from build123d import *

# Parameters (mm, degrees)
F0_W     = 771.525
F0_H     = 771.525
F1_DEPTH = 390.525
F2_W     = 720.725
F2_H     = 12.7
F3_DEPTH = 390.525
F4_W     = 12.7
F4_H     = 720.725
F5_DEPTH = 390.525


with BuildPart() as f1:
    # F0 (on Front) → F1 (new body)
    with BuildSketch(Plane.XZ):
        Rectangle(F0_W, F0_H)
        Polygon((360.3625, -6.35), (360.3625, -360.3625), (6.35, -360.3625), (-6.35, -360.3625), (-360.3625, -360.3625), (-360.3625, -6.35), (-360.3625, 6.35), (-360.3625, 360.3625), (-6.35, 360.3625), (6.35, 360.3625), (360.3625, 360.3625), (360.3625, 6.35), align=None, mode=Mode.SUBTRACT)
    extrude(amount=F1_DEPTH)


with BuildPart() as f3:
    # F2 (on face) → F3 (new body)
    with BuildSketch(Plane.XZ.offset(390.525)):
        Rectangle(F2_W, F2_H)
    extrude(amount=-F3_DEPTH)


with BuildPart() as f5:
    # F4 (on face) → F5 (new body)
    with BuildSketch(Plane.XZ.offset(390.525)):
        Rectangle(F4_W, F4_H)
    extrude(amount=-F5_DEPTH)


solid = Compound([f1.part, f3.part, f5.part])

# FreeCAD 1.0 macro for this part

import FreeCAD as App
import Part
import Sketcher
from FreeCAD import Vector
Q = App.Units.Quantity

doc = App.newDocument("Part")
body = doc.addObject("PartDesign::Body", "Body")

sketch1 = body.newObject("Sketcher::SketchObject", "Sketch")
sketch1.AttachmentSupport = (doc.getObject("XZ_Plane"), [""])
sketch1.MapMode = "FlatFace"
sketch1.addGeometry(Part.LineSegment(Vector(-386, 386, 0), Vector(-386, -386, 0)), False)
sketch1.addGeometry(Part.LineSegment(Vector(-386, -386, 0), Vector(386, -386, 0)), False)
sketch1.addGeometry(Part.LineSegment(Vector(386, -386, 0), Vector(386, 386, 0)), False)
sketch1.addGeometry(Part.LineSegment(Vector(386, 386, 0), Vector(-386, 386, 0)), False)
sketch1.addGeometry(Part.LineSegment(Vector(360, 360, 0), Vector(360, -360, 0)), False)
sketch1.addGeometry(Part.LineSegment(Vector(360, -360, 0), Vector(-360, -360, 0)), False)
sketch1.addGeometry(Part.LineSegment(Vector(-360, -360, 0), Vector(-360, 360, 0)), False)
sketch1.addGeometry(Part.LineSegment(Vector(-360, 360, 0), Vector(360, 360, 0)), False)
sketch1.addConstraint(Sketcher.Constraint("Coincident", 0, 2, 1, 1))
sketch1.addConstraint(Sketcher.Constraint("Coincident", 1, 2, 2, 1))
sketch1.addConstraint(Sketcher.Constraint("Coincident", 2, 2, 3, 1))
sketch1.addConstraint(Sketcher.Constraint("Coincident", 3, 2, 0, 1))
sketch1.addConstraint(Sketcher.Constraint("Coincident", 4, 2, 5, 1))
sketch1.addConstraint(Sketcher.Constraint("Coincident", 5, 2, 6, 1))
sketch1.addConstraint(Sketcher.Constraint("Coincident", 6, 2, 7, 1))
sketch1.addConstraint(Sketcher.Constraint("Coincident", 7, 2, 4, 1))
sketch1.addConstraint(Sketcher.Constraint("Vertical", 0))
sketch1.addConstraint(Sketcher.Constraint("Horizontal", 1))
sketch1.addConstraint(Sketcher.Constraint("Vertical", 2))
sketch1.addConstraint(Sketcher.Constraint("Horizontal", 3))
sketch1.addConstraint(Sketcher.Constraint("Vertical", 4))
sketch1.addConstraint(Sketcher.Constraint("Horizontal", 5))
sketch1.addConstraint(Sketcher.Constraint("Vertical", 6))
sketch1.addConstraint(Sketcher.Constraint("Horizontal", 7))
sketch1.addConstraint(Sketcher.Constraint("Symmetric", 0, 2, 2, 2, -1, 1))
sketch1.addConstraint(Sketcher.Constraint("Symmetric", 4, 2, 6, 2, -1, 1))
sketch1.addConstraint(Sketcher.Constraint("Equal", 3, 0))
sketch1.addConstraint(Sketcher.Constraint("Equal", 7, 4))
sketch1.addConstraint(Sketcher.Constraint("DistanceX", 4, 2, 1, 2, Q("1 in")))
sketch1.addConstraint(Sketcher.Constraint("DistanceX", 1, 1, 1, 2, Q("30.375 in")))
pad1 = body.newObject("PartDesign::Pad", "Pad")
pad1.Profile = sketch1
pad1.Length = Q("15.375 in")
body2 = doc.addObject("PartDesign::Body", "Body001")

sketch2 = body2.newObject("Sketcher::SketchObject", "Sketch001")
sketch2.AttachmentSupport = (doc.getObject("XZ_Plane001"), [""])
sketch2.MapMode = "FlatFace"
sketch2.AttachmentOffset = App.Placement(Vector(0, 0, 15.375 * 25.4), App.Rotation())
sketch2.addGeometry(Part.LineSegment(Vector(-360, 6, 0), Vector(-360, -6, 0)), False)
sketch2.addGeometry(Part.LineSegment(Vector(-360, -6, 0), Vector(360, -6, 0)), False)
sketch2.addGeometry(Part.LineSegment(Vector(360, -6, 0), Vector(360, 6, 0)), False)
sketch2.addGeometry(Part.LineSegment(Vector(360, 6, 0), Vector(-360, 6, 0)), False)
sketch2.addConstraint(Sketcher.Constraint("Coincident", 0, 2, 1, 1))
sketch2.addConstraint(Sketcher.Constraint("Coincident", 1, 2, 2, 1))
sketch2.addConstraint(Sketcher.Constraint("Coincident", 2, 2, 3, 1))
sketch2.addConstraint(Sketcher.Constraint("Coincident", 3, 2, 0, 1))
sketch2.addConstraint(Sketcher.Constraint("Vertical", 0))
sketch2.addConstraint(Sketcher.Constraint("Horizontal", 1))
sketch2.addConstraint(Sketcher.Constraint("Vertical", 2))
sketch2.addConstraint(Sketcher.Constraint("Horizontal", 3))
sketch2.addConstraint(Sketcher.Constraint("Symmetric", 0, 2, 2, 2, -1, 1))
sketch2.addConstraint(Sketcher.Constraint("DistanceY", 0, 2, 0, 1, Q("0.5 in")))
sketch2.addConstraint(Sketcher.Constraint("DistanceX", 1, 1, 1, 2, Q("28.375 in")))
pad2 = body2.newObject("PartDesign::Pad", "Pad001")
pad2.Profile = sketch2
pad2.Length = Q("15.375 in")
pad2.Reversed = True
body3 = doc.addObject("PartDesign::Body", "Body002")

sketch3 = body3.newObject("Sketcher::SketchObject", "Sketch002")
sketch3.AttachmentSupport = (doc.getObject("XZ_Plane002"), [""])
sketch3.MapMode = "FlatFace"
sketch3.AttachmentOffset = App.Placement(Vector(0, 0, 15.375 * 25.4), App.Rotation())
sketch3.addGeometry(Part.LineSegment(Vector(-6, 360, 0), Vector(-6, -360, 0)), False)
sketch3.addGeometry(Part.LineSegment(Vector(-6, -360, 0), Vector(6, -360, 0)), False)
sketch3.addGeometry(Part.LineSegment(Vector(6, -360, 0), Vector(6, 360, 0)), False)
sketch3.addGeometry(Part.LineSegment(Vector(6, 360, 0), Vector(-6, 360, 0)), False)
sketch3.addConstraint(Sketcher.Constraint("Coincident", 0, 2, 1, 1))
sketch3.addConstraint(Sketcher.Constraint("Coincident", 1, 2, 2, 1))
sketch3.addConstraint(Sketcher.Constraint("Coincident", 2, 2, 3, 1))
sketch3.addConstraint(Sketcher.Constraint("Coincident", 3, 2, 0, 1))
sketch3.addConstraint(Sketcher.Constraint("Vertical", 0))
sketch3.addConstraint(Sketcher.Constraint("Horizontal", 1))
sketch3.addConstraint(Sketcher.Constraint("Vertical", 2))
sketch3.addConstraint(Sketcher.Constraint("Horizontal", 3))
sketch3.addConstraint(Sketcher.Constraint("Symmetric", 0, 2, 2, 2, -1, 1))
sketch3.addConstraint(Sketcher.Constraint("DistanceX", 1, 1, 1, 2, Q("0.5 in")))
sketch3.addConstraint(Sketcher.Constraint("DistanceY", 0, 2, 0, 1, Q("28.375 in")))
pad3 = body3.newObject("PartDesign::Pad", "Pad002")
pad3.Profile = sketch3
pad3.Length = Q("15.375 in")
pad3.Reversed = True

doc.recompute()
